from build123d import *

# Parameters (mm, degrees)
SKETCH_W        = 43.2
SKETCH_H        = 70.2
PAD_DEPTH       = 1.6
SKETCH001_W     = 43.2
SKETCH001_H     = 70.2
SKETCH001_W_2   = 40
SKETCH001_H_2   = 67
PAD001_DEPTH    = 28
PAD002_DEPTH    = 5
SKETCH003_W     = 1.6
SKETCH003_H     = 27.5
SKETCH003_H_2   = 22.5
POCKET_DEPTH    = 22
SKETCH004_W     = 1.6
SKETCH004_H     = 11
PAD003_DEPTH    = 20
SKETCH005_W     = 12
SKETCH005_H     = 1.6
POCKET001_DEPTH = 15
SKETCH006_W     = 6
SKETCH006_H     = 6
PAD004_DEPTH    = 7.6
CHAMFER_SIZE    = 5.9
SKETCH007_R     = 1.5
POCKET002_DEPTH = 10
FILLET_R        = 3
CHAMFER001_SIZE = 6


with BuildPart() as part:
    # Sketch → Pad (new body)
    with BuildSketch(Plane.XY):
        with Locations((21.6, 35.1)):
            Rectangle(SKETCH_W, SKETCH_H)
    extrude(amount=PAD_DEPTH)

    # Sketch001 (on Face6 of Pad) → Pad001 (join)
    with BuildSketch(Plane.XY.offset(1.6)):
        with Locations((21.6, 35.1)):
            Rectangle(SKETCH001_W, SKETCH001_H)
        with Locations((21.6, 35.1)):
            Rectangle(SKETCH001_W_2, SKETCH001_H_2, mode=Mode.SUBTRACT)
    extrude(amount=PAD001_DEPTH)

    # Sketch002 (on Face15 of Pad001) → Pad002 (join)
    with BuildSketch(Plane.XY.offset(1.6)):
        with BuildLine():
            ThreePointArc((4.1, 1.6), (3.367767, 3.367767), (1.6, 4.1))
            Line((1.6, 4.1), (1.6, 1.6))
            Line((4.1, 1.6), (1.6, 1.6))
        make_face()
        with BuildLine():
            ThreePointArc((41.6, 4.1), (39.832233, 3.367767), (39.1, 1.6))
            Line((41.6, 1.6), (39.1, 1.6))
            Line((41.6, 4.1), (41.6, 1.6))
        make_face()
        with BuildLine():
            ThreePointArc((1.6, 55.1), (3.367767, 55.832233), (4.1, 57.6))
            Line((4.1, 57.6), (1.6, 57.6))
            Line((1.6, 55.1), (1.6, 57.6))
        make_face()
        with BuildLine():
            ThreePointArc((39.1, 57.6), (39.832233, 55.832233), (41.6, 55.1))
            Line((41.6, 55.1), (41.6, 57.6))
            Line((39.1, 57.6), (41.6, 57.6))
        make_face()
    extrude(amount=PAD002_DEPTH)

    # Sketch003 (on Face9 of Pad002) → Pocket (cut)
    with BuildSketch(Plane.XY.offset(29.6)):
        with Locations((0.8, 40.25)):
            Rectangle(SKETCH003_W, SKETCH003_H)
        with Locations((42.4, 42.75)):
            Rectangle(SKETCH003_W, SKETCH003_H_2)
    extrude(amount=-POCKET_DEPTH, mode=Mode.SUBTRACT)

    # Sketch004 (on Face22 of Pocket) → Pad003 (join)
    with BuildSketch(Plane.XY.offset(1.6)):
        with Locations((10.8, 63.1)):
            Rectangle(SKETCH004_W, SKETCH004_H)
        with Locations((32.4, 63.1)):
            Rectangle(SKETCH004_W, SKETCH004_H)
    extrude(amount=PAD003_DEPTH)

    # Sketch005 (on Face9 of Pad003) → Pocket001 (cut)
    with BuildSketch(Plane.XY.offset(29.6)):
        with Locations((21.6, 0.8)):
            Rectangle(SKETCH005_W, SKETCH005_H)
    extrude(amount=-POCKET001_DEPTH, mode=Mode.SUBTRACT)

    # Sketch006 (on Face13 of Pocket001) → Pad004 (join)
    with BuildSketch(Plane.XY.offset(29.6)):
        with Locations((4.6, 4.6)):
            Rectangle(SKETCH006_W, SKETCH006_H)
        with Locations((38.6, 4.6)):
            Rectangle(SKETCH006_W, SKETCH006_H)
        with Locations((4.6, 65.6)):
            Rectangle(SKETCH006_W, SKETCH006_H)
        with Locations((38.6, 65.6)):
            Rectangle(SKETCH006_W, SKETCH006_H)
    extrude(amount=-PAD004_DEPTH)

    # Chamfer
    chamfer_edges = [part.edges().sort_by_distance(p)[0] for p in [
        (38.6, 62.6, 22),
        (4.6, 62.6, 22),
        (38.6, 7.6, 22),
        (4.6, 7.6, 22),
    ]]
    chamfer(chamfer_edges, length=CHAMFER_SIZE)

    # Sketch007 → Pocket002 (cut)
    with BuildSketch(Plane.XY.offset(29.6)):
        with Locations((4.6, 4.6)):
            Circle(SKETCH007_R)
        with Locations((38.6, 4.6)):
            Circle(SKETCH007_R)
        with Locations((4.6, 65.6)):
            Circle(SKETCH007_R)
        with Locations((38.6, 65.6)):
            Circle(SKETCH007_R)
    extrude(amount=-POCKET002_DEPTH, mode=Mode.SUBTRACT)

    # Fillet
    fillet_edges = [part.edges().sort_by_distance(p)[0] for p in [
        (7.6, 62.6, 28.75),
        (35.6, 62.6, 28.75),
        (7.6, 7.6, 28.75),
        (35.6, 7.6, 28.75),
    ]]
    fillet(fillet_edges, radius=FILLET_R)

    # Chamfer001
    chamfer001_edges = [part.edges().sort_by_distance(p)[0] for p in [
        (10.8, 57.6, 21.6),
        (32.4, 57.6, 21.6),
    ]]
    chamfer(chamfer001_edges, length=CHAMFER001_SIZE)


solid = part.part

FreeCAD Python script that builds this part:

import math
import FreeCAD as App
import Part
import Sketcher
from FreeCAD import Vector
Q = App.Units.Quantity


def edges_at(feature, points):
    """Names of the edges that pass closest to the given points."""
    edges = feature.Shape.Edges
    near = lambda p: min(range(len(edges)), key=lambda i: edges[i].distToShape(Part.Vertex(*p))[0])
    return sorted({f"Edge{near(p) + 1}" for p in points})

doc = App.newDocument("Part")
body = doc.addObject("PartDesign::Body", "Body")

# Sketch on XY plane
sketch1 = doc.addObject("Sketcher::SketchObject", "Sketch")
body.addObject(sketch1)
sketch1.AttachmentSupport = (doc.XY_Plane, [""])
sketch1.MapMode = "FlatFace"
sketch1.addGeometry([
    Part.LineSegment(Vector(0, 70, 0), Vector(0, 0, 0)),
    Part.LineSegment(Vector(0, 0, 0), Vector(43, 0, 0)),
    Part.LineSegment(Vector(43, 0, 0), Vector(43, 70, 0)),
    Part.LineSegment(Vector(43, 70, 0), Vector(0, 70, 0)),
], False)
sketch1.addConstraint([
    Sketcher.Constraint("Coincident", 0, 2, 1, 1),
    Sketcher.Constraint("Coincident", 1, 2, 2, 1),
    Sketcher.Constraint("Coincident", 2, 2, 3, 1),
    Sketcher.Constraint("Coincident", 3, 2, 0, 1),
    Sketcher.Constraint("Vertical", 0),
    Sketcher.Constraint("Horizontal", 1),
    Sketcher.Constraint("Vertical", 2),
    Sketcher.Constraint("Horizontal", 3),
    Sketcher.Constraint("Coincident", 0, 2, -1, 1),
    Sketcher.Constraint("DistanceX", 1, 1, 1, 2, Q("43.2 mm")),
    Sketcher.Constraint("DistanceY", 0, 2, 0, 1, Q("70.2 mm")),
])
pad1 = doc.addObject("PartDesign::Pad", "Pad")
body.addObject(pad1)
pad1.Profile = sketch1
pad1.Length = 1.6

# Sketch on XY plane
sketch2 = doc.addObject("Sketcher::SketchObject", "Sketch001")
body.addObject(sketch2)
sketch2.AttachmentSupport = (doc.XY_Plane, [""])
sketch2.MapMode = "FlatFace"
sketch2.AttachmentOffset = App.Placement(Vector(0, 0, 1.6), App.Rotation())
sketch2.addGeometry([
    Part.LineSegment(Vector(0, 70, 0), Vector(0, 0, 0)),  # 0
    Part.LineSegment(Vector(0, 0, 0), Vector(43, 0, 0)),  # 1
    Part.LineSegment(Vector(43, 0, 0), Vector(43, 70, 0)),  # 2
    Part.LineSegment(Vector(43, 70, 0), Vector(0, 70, 0)),  # 3
    Part.LineSegment(Vector(42, 2, 0), Vector(2, 2, 0)),  # 4
    Part.LineSegment(Vector(2, 2, 0), Vector(2, 69, 0)),  # 5
    Part.LineSegment(Vector(2, 69, 0), Vector(42, 69, 0)),  # 6
    Part.LineSegment(Vector(42, 69, 0), Vector(42, 2, 0)),  # 7
], False)
sketch2.addConstraint([
    Sketcher.Constraint("Coincident", 0, 2, 1, 1),
    Sketcher.Constraint("Coincident", 1, 2, 2, 1),
    Sketcher.Constraint("Coincident", 2, 2, 3, 1),
    Sketcher.Constraint("Coincident", 3, 2, 0, 1),
    Sketcher.Constraint("Coincident", 4, 2, 5, 1),
    Sketcher.Constraint("Coincident", 5, 2, 6, 1),
    Sketcher.Constraint("Coincident", 6, 2, 7, 1),
    Sketcher.Constraint("Coincident", 7, 2, 4, 1),
    Sketcher.Constraint("Vertical", 0),
    Sketcher.Constraint("Horizontal", 1),
    Sketcher.Constraint("Vertical", 2),
    Sketcher.Constraint("Horizontal", 3),
    Sketcher.Constraint("Horizontal", 4),
    Sketcher.Constraint("Vertical", 5),
    Sketcher.Constraint("Horizontal", 6),
    Sketcher.Constraint("Vertical", 7),
    Sketcher.Constraint("Coincident", 0, 2, -1, 1),
    Sketcher.Constraint("DistanceX", 4, 2, 4, 1, Q("40 mm")),
    Sketcher.Constraint("DistanceY", 5, 1, 5, 2, Q("67 mm")),
    Sketcher.Constraint("DistanceX", 1, 1, 1, 2, Q("43.2 mm")),
    Sketcher.Constraint("DistanceY", 0, 2, 0, 1, Q("70.2 mm")),
    Sketcher.Constraint("DistanceX", -1, 1, 4, 2, Q("1.6 mm")),
    Sketcher.Constraint("DistanceY", -1, 1, 4, 2, Q("1.6 mm")),
])
pad2 = doc.addObject("PartDesign::Pad", "Pad001")
body.addObject(pad2)
pad2.Profile = sketch2
pad2.Length = 28

# Sketch on XY plane
sketch3 = doc.addObject("Sketcher::SketchObject", "Sketch002")
body.addObject(sketch3)
sketch3.AttachmentSupport = (doc.XY_Plane, [""])
sketch3.MapMode = "FlatFace"
sketch3.AttachmentOffset = App.Placement(Vector(0, 0, 1.6), App.Rotation())
sketch3.addGeometry([
    Part.ArcOfCircle(Part.Circle(Vector(1.6, 1.6, 0), Vector(0, 0, 1), 2.5), math.radians(0), math.radians(90)),  # 0
    Part.LineSegment(Vector(1.6, 4.1, 0), Vector(1.6, 1.6, 0)),  # 1
    Part.LineSegment(Vector(1.6, 1.6, 0), Vector(4.1, 1.6, 0)),  # 2
    Part.ArcOfCircle(Part.Circle(Vector(41.6, 1.6, 0), Vector(0, 0, 1), 2.5), math.radians(90), math.radians(180)),  # 3
    Part.LineSegment(Vector(39.1, 1.6, 0), Vector(41.6, 1.6, 0)),  # 4
    Part.LineSegment(Vector(41.6, 1.6, 0), Vector(41.6, 4.1, 0)),  # 5
    Part.ArcOfCircle(Part.Circle(Vector(1.6, 57.6, 0), Vector(0, 0, 1), 2.5), math.radians(-90), math.radians(0)),  # 6
    Part.LineSegment(Vector(4.1, 57.6, 0), Vector(1.6, 57.6, 0)),  # 7
    Part.LineSegment(Vector(1.6, 57.6, 0), Vector(1.6, 55.1, 0)),  # 8
    Part.ArcOfCircle(Part.Circle(Vector(41.6, 57.6, 0), Vector(0, 0, 1), 2.5), math.radians(180), math.radians(270)),  # 9
    Part.LineSegment(Vector(41.6, 55.1, 0), Vector(41.6, 57.6, 0)),  # 10
    Part.LineSegment(Vector(41.6, 57.6, 0), Vector(39.1, 57.6, 0)),  # 11
], False)
sketch3.addConstraint([
    Sketcher.Constraint("Coincident", 0, 2, 1, 1),
    Sketcher.Constraint("Coincident", 1, 2, 2, 1),
    Sketcher.Constraint("Coincident", 2, 2, 0, 1),
    Sketcher.Constraint("Coincident", 3, 2, 4, 1),
    Sketcher.Constraint("Coincident", 4, 2, 5, 1),
    Sketcher.Constraint("Coincident", 5, 2, 3, 1),
    Sketcher.Constraint("Coincident", 6, 2, 7, 1),
    Sketcher.Constraint("Coincident", 7, 2, 8, 1),
    Sketcher.Constraint("Coincident", 8, 2, 6, 1),
    Sketcher.Constraint("Coincident", 9, 2, 10, 1),
    Sketcher.Constraint("Coincident", 10, 2, 11, 1),
    Sketcher.Constraint("Coincident", 11, 2, 9, 1),
    Sketcher.Constraint("Vertical", 1),
    Sketcher.Constraint("Horizontal", 2),
    Sketcher.Constraint("Horizontal", 4),
    Sketcher.Constraint("Vertical", 5),
    Sketcher.Constraint("Horizontal", 7),
    Sketcher.Constraint("Vertical", 8),
    Sketcher.Constraint("Vertical", 10),
    Sketcher.Constraint("Horizontal", 11),
    Sketcher.Constraint("Coincident", 1, 2, 0, 3),
    Sketcher.Constraint("Coincident", 4, 2, 3, 3),
    Sketcher.Constraint("Coincident", 7, 2, 6, 3),
    Sketcher.Constraint("Coincident", 10, 2, 9, 3),
    Sketcher.Constraint("Equal", 0, 3),
    Sketcher.Constraint("Equal", 3, 6),
    Sketcher.Constraint("Equal", 6, 9),
    Sketcher.Constraint("Horizontal", 0, 3, 3, 3),
    Sketcher.Constraint("Horizontal", 6, 3, 9, 3),
    Sketcher.Constraint("Vertical", 0, 3, 6, 3),
    Sketcher.Constraint("Vertical", 3, 3, 9, 3),
    Sketcher.Constraint("Radius", 0, Q("2.5 mm")),
    Sketcher.Constraint("DistanceX", 0, 3, 3, 3, Q("40 mm")),
    Sketcher.Constraint("DistanceY", 0, 3, 6, 3, Q("56 mm")),
    Sketcher.Constraint("DistanceX", -1, 1, 0, 3, Q("1.6 mm")),
    Sketcher.Constraint("DistanceY", -1, 1, 0, 3, Q("1.6 mm")),
])
pad3 = doc.addObject("PartDesign::Pad", "Pad002")
body.addObject(pad3)
pad3.Profile = sketch3
pad3.Length = 5

# Sketch on XY plane
sketch4 = doc.addObject("Sketcher::SketchObject", "Sketch003")
body.addObject(sketch4)
sketch4.AttachmentSupport = (doc.XY_Plane, [""])
sketch4.MapMode = "FlatFace"
sketch4.AttachmentOffset = App.Placement(Vector(0, 0, 29.6), App.Rotation())
sketch4.addGeometry([
    Part.LineSegment(Vector(0, 54, 0), Vector(0, 26.5, 0)),  # 0
    Part.LineSegment(Vector(0, 26.5, 0), Vector(1.6, 26.5, 0)),  # 1
    Part.LineSegment(Vector(1.6, 26.5, 0), Vector(1.6, 54, 0)),  # 2
    Part.LineSegment(Vector(1.6, 54, 0), Vector(0, 54, 0)),  # 3
    Part.LineSegment(Vector(41.6, 54, 0), Vector(41.6, 31.5, 0)),  # 4
    Part.LineSegment(Vector(41.6, 31.5, 0), Vector(43.2, 31.5, 0)),  # 5
    Part.LineSegment(Vector(43.2, 31.5, 0), Vector(43.2, 54, 0)),  # 6
    Part.LineSegment(Vector(43.2, 54, 0), Vector(41.6, 54, 0)),  # 7
], False)
sketch4.addConstraint([
    Sketcher.Constraint("Coincident", 0, 2, 1, 1),
    Sketcher.Constraint("Coincident", 1, 2, 2, 1),
    Sketcher.Constraint("Coincident", 2, 2, 3, 1),
    Sketcher.Constraint("Coincident", 3, 2, 0, 1),
    Sketcher.Constraint("Coincident", 4, 2, 5, 1),
    Sketcher.Constraint("Coincident", 5, 2, 6, 1),
    Sketcher.Constraint("Coincident", 6, 2, 7, 1),
    Sketcher.Constraint("Coincident", 7, 2, 4, 1),
    Sketcher.Constraint("Vertical", 0),
    Sketcher.Constraint("Horizontal", 1),
    Sketcher.Constraint("Vertical", 2),
    Sketcher.Constraint("Horizontal", 3),
    Sketcher.Constraint("Vertical", 4),
    Sketcher.Constraint("Horizontal", 5),
    Sketcher.Constraint("Vertical", 6),
    Sketcher.Constraint("Horizontal", 7),
    Sketcher.Constraint("PointOnObject", 0, 2, -2),
    Sketcher.Constraint("Horizontal", 3, 2, 6, 2),
    Sketcher.Constraint("Equal", 3, 5),
    Sketcher.Constraint("DistanceX", 1, 1, 1, 2, Q("1.6 mm")),
    Sketcher.Constraint("DistanceY", 0, 2, 0, 1, Q("27.5 mm")),
    Sketcher.Constraint("DistanceY", 4, 2, 4, 1, Q("22.5 mm")),
    Sketcher.Constraint("DistanceY", -1, 1, 2, 2, Q("54 mm")),
    Sketcher.Constraint("DistanceX", 1, 2, 4, 2, Q("40 mm")),
])
pocket1 = doc.addObject("PartDesign::Pocket", "Pocket")
body.addObject(pocket1)
pocket1.Profile = sketch4
pocket1.Length = 22

# Sketch on XY plane
sketch5 = doc.addObject("Sketcher::SketchObject", "Sketch004")
body.addObject(sketch5)
sketch5.AttachmentSupport = (doc.XY_Plane, [""])
sketch5.MapMode = "FlatFace"
sketch5.AttachmentOffset = App.Placement(Vector(0, 0, 1.6), App.Rotation())
sketch5.addGeometry([
    Part.LineSegment(Vector(10, 68.6, 0), Vector(10, 57.6, 0)),  # 0
    Part.LineSegment(Vector(10, 57.6, 0), Vector(11.6, 57.6, 0)),  # 1
    Part.LineSegment(Vector(11.6, 57.6, 0), Vector(11.6, 68.6, 0)),  # 2
    Part.LineSegment(Vector(11.6, 68.6, 0), Vector(10, 68.6, 0)),  # 3
    Part.LineSegment(Vector(31.6, 68.6, 0), Vector(31.6, 57.6, 0)),  # 4
    Part.LineSegment(Vector(31.6, 57.6, 0), Vector(33.2, 57.6, 0)),  # 5
    Part.LineSegment(Vector(33.2, 57.6, 0), Vector(33.2, 68.6, 0)),  # 6
    Part.LineSegment(Vector(33.2, 68.6, 0), Vector(31.6, 68.6, 0)),  # 7
], False)
sketch5.addConstraint([
    Sketcher.Constraint("Coincident", 0, 2, 1, 1),
    Sketcher.Constraint("Coincident", 1, 2, 2, 1),
    Sketcher.Constraint("Coincident", 2, 2, 3, 1),
    Sketcher.Constraint("Coincident", 3, 2, 0, 1),
    Sketcher.Constraint("Coincident", 4, 2, 5, 1),
    Sketcher.Constraint("Coincident", 5, 2, 6, 1),
    Sketcher.Constraint("Coincident", 6, 2, 7, 1),
    Sketcher.Constraint("Coincident", 7, 2, 4, 1),
    Sketcher.Constraint("Vertical", 0),
    Sketcher.Constraint("Horizontal", 1),
    Sketcher.Constraint("Vertical", 2),
    Sketcher.Constraint("Horizontal", 3),
    Sketcher.Constraint("Vertical", 4),
    Sketcher.Constraint("Horizontal", 5),
    Sketcher.Constraint("Vertical", 6),
    Sketcher.Constraint("Horizontal", 7),
    Sketcher.Constraint("Horizontal", 1, 2, 4, 2),
    Sketcher.Constraint("Horizontal", 3, 2, 6, 2),
    Sketcher.Constraint("Equal", 3, 5),
    Sketcher.Constraint("DistanceY", 0, 2, 0, 1, Q("11 mm")),
    Sketcher.Constraint("DistanceX", 1, 1, 1, 2, Q("1.6 mm")),
    Sketcher.Constraint("DistanceX", -1, 1, 0, 2, Q("10 mm")),
    Sketcher.Constraint("DistanceX", 1, 2, 4, 2, Q("20 mm")),
    Sketcher.Constraint("DistanceY", -1, 1, 0, 2, Q("57.6 mm")),
])
pad4 = doc.addObject("PartDesign::Pad", "Pad003")
body.addObject(pad4)
pad4.Profile = sketch5
pad4.Length = 20

# Sketch on XY plane
sketch6 = doc.addObject("Sketcher::SketchObject", "Sketch005")
body.addObject(sketch6)
sketch6.AttachmentSupport = (doc.XY_Plane, [""])
sketch6.MapMode = "FlatFace"
sketch6.AttachmentOffset = App.Placement(Vector(0, 0, 29.6), App.Rotation())
sketch6.addGeometry([
    Part.LineSegment(Vector(15.6, 1.6, 0), Vector(15.6, 0, 0)),
    Part.LineSegment(Vector(15.6, 0, 0), Vector(27.6, 0, 0)),
    Part.LineSegment(Vector(27.6, 0, 0), Vector(27.6, 1.6, 0)),
    Part.LineSegment(Vector(27.6, 1.6, 0), Vector(15.6, 1.6, 0)),
], False)
sketch6.addConstraint([
    Sketcher.Constraint("Coincident", 0, 2, 1, 1),
    Sketcher.Constraint("Coincident", 1, 2, 2, 1),
    Sketcher.Constraint("Coincident", 2, 2, 3, 1),
    Sketcher.Constraint("Coincident", 3, 2, 0, 1),
    Sketcher.Constraint("Vertical", 0),
    Sketcher.Constraint("Horizontal", 1),
    Sketcher.Constraint("Vertical", 2),
    Sketcher.Constraint("Horizontal", 3),
    Sketcher.Constraint("PointOnObject", 0, 2, -1),
    Sketcher.Constraint("DistanceX", 1, 1, 1, 2, Q("12 mm")),
    Sketcher.Constraint("DistanceY", 0, 2, 0, 1, Q("1.6 mm")),
    Sketcher.Constraint("DistanceX", -1, 1, 0, 2, Q("15.6 mm")),
])
pocket2 = doc.addObject("PartDesign::Pocket", "Pocket001")
body.addObject(pocket2)
pocket2.Profile = sketch6
pocket2.Length = 15

# Sketch on XY plane
sketch7 = doc.addObject("Sketcher::SketchObject", "Sketch006")
body.addObject(sketch7)
sketch7.AttachmentSupport = (doc.XY_Plane, [""])
sketch7.MapMode = "FlatFace"
sketch7.AttachmentOffset = App.Placement(Vector(0, 0, 29.6), App.Rotation())
sketch7.addGeometry([
    Part.LineSegment(Vector(2, 8, 0), Vector(2, 2, 0)),  # 0
    Part.LineSegment(Vector(2, 2, 0), Vector(8, 2, 0)),  # 1
    Part.LineSegment(Vector(8, 2, 0), Vector(8, 8, 0)),  # 2
    Part.LineSegment(Vector(8, 8, 0), Vector(2, 8, 0)),  # 3
    Part.LineSegment(Vector(36, 8, 0), Vector(36, 2, 0)),  # 4
    Part.LineSegment(Vector(36, 2, 0), Vector(42, 2, 0)),  # 5
    Part.LineSegment(Vector(42, 2, 0), Vector(42, 8, 0)),  # 6
    Part.LineSegment(Vector(42, 8, 0), Vector(36, 8, 0)),  # 7
    Part.LineSegment(Vector(2, 69, 0), Vector(2, 63, 0)),  # 8
    Part.LineSegment(Vector(2, 63, 0), Vector(8, 63, 0)),  # 9
    Part.LineSegment(Vector(8, 63, 0), Vector(8, 69, 0)),  # 10
    Part.LineSegment(Vector(8, 69, 0), Vector(2, 69, 0)),  # 11
    Part.LineSegment(Vector(36, 69, 0), Vector(36, 63, 0)),  # 12
    Part.LineSegment(Vector(36, 63, 0), Vector(42, 63, 0)),  # 13
    Part.LineSegment(Vector(42, 63, 0), Vector(42, 69, 0)),  # 14
    Part.LineSegment(Vector(42, 69, 0), Vector(36, 69, 0)),  # 15
], False)
sketch7.addConstraint([
    Sketcher.Constraint("Coincident", 0, 2, 1, 1),
    Sketcher.Constraint("Coincident", 1, 2, 2, 1),
    Sketcher.Constraint("Coincident", 2, 2, 3, 1),
    Sketcher.Constraint("Coincident", 3, 2, 0, 1),
    Sketcher.Constraint("Coincident", 4, 2, 5, 1),
    Sketcher.Constraint("Coincident", 5, 2, 6, 1),
    Sketcher.Constraint("Coincident", 6, 2, 7, 1),
    Sketcher.Constraint("Coincident", 7, 2, 4, 1),
    Sketcher.Constraint("Coincident", 8, 2, 9, 1),
    Sketcher.Constraint("Coincident", 9, 2, 10, 1),
    Sketcher.Constraint("Coincident", 10, 2, 11, 1),
    Sketcher.Constraint("Coincident", 11, 2, 8, 1),
    Sketcher.Constraint("Coincident", 12, 2, 13, 1),
    Sketcher.Constraint("Coincident", 13, 2, 14, 1),
    Sketcher.Constraint("Coincident", 14, 2, 15, 1),
    Sketcher.Constraint("Coincident", 15, 2, 12, 1),
    Sketcher.Constraint("Vertical", 0),
    Sketcher.Constraint("Horizontal", 1),
    Sketcher.Constraint("Vertical", 2),
    Sketcher.Constraint("Horizontal", 3),
    Sketcher.Constraint("Vertical", 4),
    Sketcher.Constraint("Horizontal", 5),
    Sketcher.Constraint("Vertical", 6),
    Sketcher.Constraint("Horizontal", 7),
    Sketcher.Constraint("Vertical", 8),
    Sketcher.Constraint("Horizontal", 9),
    Sketcher.Constraint("Vertical", 10),
    Sketcher.Constraint("Horizontal", 11),
    Sketcher.Constraint("Vertical", 12),
    Sketcher.Constraint("Horizontal", 13),
    Sketcher.Constraint("Vertical", 14),
    Sketcher.Constraint("Horizontal", 15),
    Sketcher.Constraint("Horizontal", 1, 2, 4, 2),
    Sketcher.Constraint("Horizontal", 3, 2, 6, 2),
    Sketcher.Constraint("Horizontal", 9, 2, 12, 2),
    Sketcher.Constraint("Horizontal", 11, 2, 14, 2),
    Sketcher.Constraint("Vertical", 3, 2, 8, 2),
    Sketcher.Constraint("Vertical", 2, 2, 9, 2),
    Sketcher.Constraint("Vertical", 7, 2, 12, 2),
    Sketcher.Constraint("Vertical", 6, 2, 13, 2),
    Sketcher.Constraint("Equal", 3, 5),
    Sketcher.Constraint("Equal", 15, 0),
    Sketcher.Constraint("Equal", 6, 8),
    Sketcher.Constraint("DistanceX", 1, 1, 1, 2, Q("6 mm")),
    Sketcher.Constraint("DistanceX", 1, 2, 4, 2, Q("28 mm")),
    Sketcher.Constraint("DistanceY", 3, 2, 8, 2, Q("55 mm")),
    Sketcher.Constraint("DistanceX", -1, 1, 0, 2, Q("1.6 mm")),
    Sketcher.Constraint("DistanceY", -1, 1, 0, 2, Q("1.6 mm")),
])
pad5 = doc.addObject("PartDesign::Pad", "Pad004")
body.addObject(pad5)
pad5.Profile = sketch7
pad5.Length = 7.6
pad5.Reversed = True
doc.recompute()

chamfer = doc.addObject("PartDesign::Chamfer", "Chamfer")
body.addObject(chamfer)
chamfer.Base = (pad5, edges_at(pad5, [
    (38.6, 62.6, 22),
    (4.6, 62.6, 22),
    (38.6, 7.6, 22),
    (4.6, 7.6, 22),
]))
chamfer.Size = 5.9

# Sketch on XY plane
sketch8 = doc.addObject("Sketcher::SketchObject", "Sketch007")
body.addObject(sketch8)
sketch8.AttachmentSupport = (doc.XY_Plane, [""])
sketch8.MapMode = "FlatFace"
sketch8.AttachmentOffset = App.Placement(Vector(0, 0, 29.6), App.Rotation())
sketch8.addGeometry([
    Part.Circle(Vector(4.6, 4.6, 0), Vector(0, 0, 1), 1.5),
    Part.Circle(Vector(38.6, 4.6, 0), Vector(0, 0, 1), 1.5),
    Part.Circle(Vector(4.6, 65.6, 0), Vector(0, 0, 1), 1.5),
    Part.Circle(Vector(38.6, 65.6, 0), Vector(0, 0, 1), 1.5),
], False)
sketch8.addConstraint([
    Sketcher.Constraint("Equal", 0, 1),
    Sketcher.Constraint("Equal", 1, 2),
    Sketcher.Constraint("Equal", 2, 3),
    Sketcher.Constraint("Horizontal", 0, 3, 1, 3),
    Sketcher.Constraint("Horizontal", 2, 3, 3, 3),
    Sketcher.Constraint("Vertical", 0, 3, 2, 3),
    Sketcher.Constraint("Vertical", 1, 3, 3, 3),
    Sketcher.Constraint("Diameter", 0, Q("3 mm")),
    Sketcher.Constraint("DistanceX", 0, 3, 1, 3, Q("34 mm")),
    Sketcher.Constraint("DistanceY", 0, 3, 2, 3, Q("61 mm")),
    Sketcher.Constraint("DistanceX", -1, 1, 0, 3, Q("4.6 mm")),
    Sketcher.Constraint("DistanceY", -1, 1, 0, 3, Q("4.6 mm")),
])
pocket3 = doc.addObject("PartDesign::Pocket", "Pocket002")
body.addObject(pocket3)
pocket3.Profile = sketch8
pocket3.Length = 10
doc.recompute()

fillet = doc.addObject("PartDesign::Fillet", "Fillet")
body.addObject(fillet)
fillet.Base = (pocket3, edges_at(pocket3, [
    (7.6, 62.6, 28.75),
    (35.6, 62.6, 28.75),
    (7.6, 7.6, 28.75),
    (35.6, 7.6, 28.75),
]))
fillet.Radius = 3
doc.recompute()

chamfer2 = doc.addObject("PartDesign::Chamfer", "Chamfer001")
body.addObject(chamfer2)
chamfer2.Base = (fillet, edges_at(fillet, [(10.8, 57.6, 21.6), (32.4, 57.6, 21.6)]))
chamfer2.Size = 6

doc.recompute()
